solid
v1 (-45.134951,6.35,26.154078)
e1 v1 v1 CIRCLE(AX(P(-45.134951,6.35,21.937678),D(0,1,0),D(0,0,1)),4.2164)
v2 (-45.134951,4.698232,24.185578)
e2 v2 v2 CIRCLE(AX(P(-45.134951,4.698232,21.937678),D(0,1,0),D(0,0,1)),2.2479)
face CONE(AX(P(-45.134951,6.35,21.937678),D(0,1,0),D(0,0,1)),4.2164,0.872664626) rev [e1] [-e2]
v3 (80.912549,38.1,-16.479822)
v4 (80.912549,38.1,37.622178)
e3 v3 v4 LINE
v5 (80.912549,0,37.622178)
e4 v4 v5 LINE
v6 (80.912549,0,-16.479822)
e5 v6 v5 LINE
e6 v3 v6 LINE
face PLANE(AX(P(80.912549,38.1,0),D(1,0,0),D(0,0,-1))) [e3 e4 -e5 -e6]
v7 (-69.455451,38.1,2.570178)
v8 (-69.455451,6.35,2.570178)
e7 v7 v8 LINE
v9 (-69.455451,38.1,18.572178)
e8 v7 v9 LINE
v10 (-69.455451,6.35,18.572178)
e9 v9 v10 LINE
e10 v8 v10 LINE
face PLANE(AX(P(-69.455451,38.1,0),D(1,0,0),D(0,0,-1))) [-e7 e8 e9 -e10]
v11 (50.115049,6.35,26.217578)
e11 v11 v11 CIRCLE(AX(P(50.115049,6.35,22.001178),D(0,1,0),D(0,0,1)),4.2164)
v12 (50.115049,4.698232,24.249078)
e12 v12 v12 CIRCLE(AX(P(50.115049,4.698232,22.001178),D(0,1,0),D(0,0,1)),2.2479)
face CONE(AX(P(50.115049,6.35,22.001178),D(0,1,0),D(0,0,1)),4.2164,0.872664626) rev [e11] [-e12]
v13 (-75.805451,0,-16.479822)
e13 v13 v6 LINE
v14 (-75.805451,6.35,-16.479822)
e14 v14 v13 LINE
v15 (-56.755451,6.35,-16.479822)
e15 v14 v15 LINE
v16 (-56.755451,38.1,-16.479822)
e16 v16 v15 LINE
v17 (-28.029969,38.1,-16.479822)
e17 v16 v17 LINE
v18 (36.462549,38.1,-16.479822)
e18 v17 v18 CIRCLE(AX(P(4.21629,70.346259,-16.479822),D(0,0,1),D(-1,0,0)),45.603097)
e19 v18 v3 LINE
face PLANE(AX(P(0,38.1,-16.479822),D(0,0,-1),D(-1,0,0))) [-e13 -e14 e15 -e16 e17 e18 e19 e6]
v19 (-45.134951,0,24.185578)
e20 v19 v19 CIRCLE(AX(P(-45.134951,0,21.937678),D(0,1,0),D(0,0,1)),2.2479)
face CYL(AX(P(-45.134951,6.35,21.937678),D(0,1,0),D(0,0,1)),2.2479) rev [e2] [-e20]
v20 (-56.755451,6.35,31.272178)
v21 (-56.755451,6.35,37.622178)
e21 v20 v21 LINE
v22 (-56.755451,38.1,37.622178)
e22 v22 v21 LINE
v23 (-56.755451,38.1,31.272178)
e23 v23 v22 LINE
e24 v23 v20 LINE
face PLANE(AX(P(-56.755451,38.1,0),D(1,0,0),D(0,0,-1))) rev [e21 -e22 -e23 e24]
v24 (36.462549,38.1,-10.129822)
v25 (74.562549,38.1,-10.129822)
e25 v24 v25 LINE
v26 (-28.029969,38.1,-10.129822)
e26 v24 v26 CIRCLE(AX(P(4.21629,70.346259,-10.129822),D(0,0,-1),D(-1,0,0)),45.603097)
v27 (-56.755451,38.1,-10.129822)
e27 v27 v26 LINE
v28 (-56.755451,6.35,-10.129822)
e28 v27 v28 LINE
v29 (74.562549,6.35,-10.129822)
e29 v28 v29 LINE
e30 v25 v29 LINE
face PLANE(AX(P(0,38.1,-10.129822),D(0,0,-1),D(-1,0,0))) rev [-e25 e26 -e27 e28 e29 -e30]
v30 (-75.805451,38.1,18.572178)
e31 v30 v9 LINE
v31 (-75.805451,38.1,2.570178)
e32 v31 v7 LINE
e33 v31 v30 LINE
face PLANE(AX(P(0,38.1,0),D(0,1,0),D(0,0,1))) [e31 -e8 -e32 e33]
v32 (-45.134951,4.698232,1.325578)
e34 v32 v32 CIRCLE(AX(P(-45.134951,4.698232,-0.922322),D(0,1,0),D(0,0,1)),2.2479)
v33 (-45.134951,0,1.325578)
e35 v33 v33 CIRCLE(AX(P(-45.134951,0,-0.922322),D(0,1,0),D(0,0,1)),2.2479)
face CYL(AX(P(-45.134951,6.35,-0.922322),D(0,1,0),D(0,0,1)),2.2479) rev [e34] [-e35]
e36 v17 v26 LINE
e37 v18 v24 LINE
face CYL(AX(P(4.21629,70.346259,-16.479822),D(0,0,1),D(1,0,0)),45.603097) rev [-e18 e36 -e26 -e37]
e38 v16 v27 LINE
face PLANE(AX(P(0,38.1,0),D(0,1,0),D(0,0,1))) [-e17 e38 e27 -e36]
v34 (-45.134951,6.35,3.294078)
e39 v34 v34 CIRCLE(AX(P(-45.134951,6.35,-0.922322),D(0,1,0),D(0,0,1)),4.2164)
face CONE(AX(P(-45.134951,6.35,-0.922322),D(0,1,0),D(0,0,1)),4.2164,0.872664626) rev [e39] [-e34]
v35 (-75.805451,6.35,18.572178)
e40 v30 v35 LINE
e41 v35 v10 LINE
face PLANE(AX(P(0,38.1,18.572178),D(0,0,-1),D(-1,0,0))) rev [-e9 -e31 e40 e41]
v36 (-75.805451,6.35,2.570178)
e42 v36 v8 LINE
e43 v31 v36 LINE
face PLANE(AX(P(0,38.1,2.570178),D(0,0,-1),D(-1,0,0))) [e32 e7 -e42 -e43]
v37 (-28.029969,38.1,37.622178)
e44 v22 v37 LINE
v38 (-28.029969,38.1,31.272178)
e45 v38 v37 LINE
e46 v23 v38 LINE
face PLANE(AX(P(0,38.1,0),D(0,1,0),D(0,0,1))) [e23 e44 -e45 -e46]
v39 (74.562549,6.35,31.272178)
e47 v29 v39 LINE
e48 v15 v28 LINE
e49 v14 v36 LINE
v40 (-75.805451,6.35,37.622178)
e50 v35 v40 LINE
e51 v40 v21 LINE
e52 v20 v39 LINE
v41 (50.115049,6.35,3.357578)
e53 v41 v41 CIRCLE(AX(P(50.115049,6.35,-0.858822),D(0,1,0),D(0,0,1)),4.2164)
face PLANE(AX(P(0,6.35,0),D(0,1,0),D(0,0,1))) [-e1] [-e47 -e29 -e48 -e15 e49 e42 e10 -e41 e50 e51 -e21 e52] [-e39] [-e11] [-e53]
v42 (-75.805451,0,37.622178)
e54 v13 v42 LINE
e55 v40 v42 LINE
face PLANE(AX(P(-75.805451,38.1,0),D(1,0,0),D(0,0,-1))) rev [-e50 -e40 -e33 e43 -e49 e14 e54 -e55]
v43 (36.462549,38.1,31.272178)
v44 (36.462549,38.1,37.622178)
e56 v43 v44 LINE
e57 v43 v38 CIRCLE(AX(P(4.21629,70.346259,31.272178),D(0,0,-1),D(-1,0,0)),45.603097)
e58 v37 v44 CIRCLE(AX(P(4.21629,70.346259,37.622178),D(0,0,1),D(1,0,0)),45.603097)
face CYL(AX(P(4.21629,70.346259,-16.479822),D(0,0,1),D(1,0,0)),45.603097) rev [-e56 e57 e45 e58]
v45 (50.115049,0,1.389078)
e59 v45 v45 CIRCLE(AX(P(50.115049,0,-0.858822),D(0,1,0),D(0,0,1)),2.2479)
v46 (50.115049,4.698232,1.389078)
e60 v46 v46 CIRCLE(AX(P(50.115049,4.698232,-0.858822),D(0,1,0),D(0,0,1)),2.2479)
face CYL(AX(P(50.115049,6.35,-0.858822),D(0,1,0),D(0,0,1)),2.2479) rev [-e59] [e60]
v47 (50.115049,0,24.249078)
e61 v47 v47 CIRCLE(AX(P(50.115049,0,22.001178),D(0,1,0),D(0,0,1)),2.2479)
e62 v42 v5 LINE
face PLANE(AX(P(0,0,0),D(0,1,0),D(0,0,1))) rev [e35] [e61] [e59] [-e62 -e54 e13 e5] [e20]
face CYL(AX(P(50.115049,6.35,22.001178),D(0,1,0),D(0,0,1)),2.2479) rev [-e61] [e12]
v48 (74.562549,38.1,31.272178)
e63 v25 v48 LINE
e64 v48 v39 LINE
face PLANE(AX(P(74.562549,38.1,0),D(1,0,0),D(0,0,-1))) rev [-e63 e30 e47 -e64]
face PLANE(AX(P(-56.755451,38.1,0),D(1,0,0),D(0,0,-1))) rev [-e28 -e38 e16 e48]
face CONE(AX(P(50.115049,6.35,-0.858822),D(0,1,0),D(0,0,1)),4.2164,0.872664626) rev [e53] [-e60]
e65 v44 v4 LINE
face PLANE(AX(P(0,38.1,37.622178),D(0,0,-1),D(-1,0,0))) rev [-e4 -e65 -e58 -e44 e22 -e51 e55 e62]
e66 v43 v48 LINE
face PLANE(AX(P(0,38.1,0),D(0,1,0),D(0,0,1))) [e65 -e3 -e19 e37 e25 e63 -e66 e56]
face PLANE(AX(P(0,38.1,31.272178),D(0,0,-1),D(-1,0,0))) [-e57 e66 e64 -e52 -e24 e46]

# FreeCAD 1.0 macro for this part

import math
import FreeCAD as App
import Part
import Sketcher
Q = App.Units.Quantity


def add_polygon(sketch, points):
    """Adds a closed chain of lines whose ends are joined by coincident constraints."""
    first, n = sketch.GeometryCount, len(points)
    for a, b in zip(points, points[1:] + points[:1]):
        sketch.addGeometry(Part.LineSegment(App.Vector(*a, 0), App.Vector(*b, 0)), False)
    for i in range(n):
        sketch.addConstraint(Sketcher.Constraint("Coincident", first + i, 2, first + (i + 1) % n, 1))

doc = App.newDocument("Part")
body = doc.addObject("PartDesign::Body", "Body")

# Sketch on XZ plane
sketch1 = body.newObject("Sketcher::SketchObject", "Sketch")
sketch1.AttachmentSupport = (doc.getObject("XZ_Plane"), [""])
sketch1.MapMode = "FlatFace"
add_polygon(sketch1, [(74.562549, -16.479822), (74.562549, 37.622178), (80.912549, 37.622178), (80.912549, -16.479822)])  # lines 0-3
sketch1.addConstraint(Sketcher.Constraint("Vertical", 0))
sketch1.addConstraint(Sketcher.Constraint("Horizontal", 1))
sketch1.addConstraint(Sketcher.Constraint("Vertical", 2))
sketch1.addConstraint(Sketcher.Constraint("Horizontal", 3))
sketch1.addConstraint(Sketcher.Constraint("DistanceX", 1, 1, 1, 2, Q("0.25 in")))
sketch1.addConstraint(Sketcher.Constraint("DistanceY", 0, 1, 0, 2, Q("2.13 in")))
sketch1.addConstraint(Sketcher.Constraint("DistanceX", -1, 1, 0, 2, Q("74.562549 mm")))
sketch1.addConstraint(Sketcher.Constraint("DistanceY", -1, 1, 0, 2, Q("37.622178 mm")))
pad1 = body.newObject("PartDesign::Pad", "Pad")
pad1.Profile = sketch1
pad1.Length = Q("1.5 in")
pad1.Reversed = True
body2 = doc.addObject("PartDesign::Body", "Body001")

# Sketch on XZ plane
sketch2 = body2.newObject("Sketcher::SketchObject", "Sketch001")
sketch2.AttachmentSupport = (doc.getObject("XZ_Plane001"), [""])
sketch2.MapMode = "FlatFace"
add_polygon(sketch2, [(-75.805451, 2.570178), (-75.805451, 18.572178), (-69.455451, 18.572178), (-69.455451, 2.570178)])  # lines 0-3
sketch2.addConstraint(Sketcher.Constraint("Vertical", 0))
sketch2.addConstraint(Sketcher.Constraint("Horizontal", 1))
sketch2.addConstraint(Sketcher.Constraint("Vertical", 2))
sketch2.addConstraint(Sketcher.Constraint("Horizontal", 3))
sketch2.addConstraint(Sketcher.Constraint("DistanceX", 1, 1, 1, 2, Q("0.25 in")))
sketch2.addConstraint(Sketcher.Constraint("DistanceY", 0, 1, 0, 2, Q("0.63 in")))
sketch2.addConstraint(Sketcher.Constraint("DistanceX", 0, 2, -1, 1, Q("75.805451 mm")))
sketch2.addConstraint(Sketcher.Constraint("DistanceY", -1, 1, 0, 2, Q("18.572178 mm")))
pad2 = body2.newObject("PartDesign::Pad", "Pad001")
pad2.Profile = sketch2
pad2.Length = Q("1.5 in")
pad2.Reversed = True
body.AllowCompound = True
doc.recompute()

boolean = body.newObject("PartDesign::Boolean", "Boolean")
boolean.Type = "Fuse"
boolean.addObjects([body2])

# Sketch on XZ plane
sketch3 = body.newObject("Sketcher::SketchObject", "Sketch002")
sketch3.AttachmentSupport = (doc.getObject("XZ_Plane"), [""])
sketch3.MapMode = "FlatFace"
add_polygon(sketch3, [(-69.455451, -10.129822), (-69.455451, 31.272178), (74.562549, 31.272178), (74.562549, -10.129822)])  # lines 0-3
sketch3.addConstraint(Sketcher.Constraint("Vertical", 0))
sketch3.addConstraint(Sketcher.Constraint("Horizontal", 1))
sketch3.addConstraint(Sketcher.Constraint("Vertical", 2))
sketch3.addConstraint(Sketcher.Constraint("Horizontal", 3))
sketch3.addConstraint(Sketcher.Constraint("DistanceX", 1, 1, 1, 2, Q("5.67 in")))
sketch3.addConstraint(Sketcher.Constraint("DistanceY", 0, 1, 0, 2, Q("1.63 in")))
sketch3.addConstraint(Sketcher.Constraint("DistanceX", 0, 2, -1, 1, Q("69.455451 mm")))
sketch3.addConstraint(Sketcher.Constraint("DistanceY", -1, 1, 0, 2, Q("31.272178 mm")))
pad3 = body.newObject("PartDesign::Pad", "Pad002")
pad3.Profile = sketch3
pad3.Length = Q("0.25 in")
pad3.Reversed = True

# Sketch on XZ plane
sketch4 = body.newObject("Sketcher::SketchObject", "Sketch003")
sketch4.AttachmentSupport = (doc.getObject("XZ_Plane"), [""])
sketch4.MapMode = "FlatFace"
add_polygon(sketch4, [(-56.755451, -16.479822), (-56.755451, -10.129822), (74.562549, -10.129822), (74.562549, -16.479822)])  # lines 0-3
add_polygon(sketch4, [(-56.755451, 31.272178), (-56.755451, 37.622178), (74.562549, 37.622178), (74.562549, 31.272178)])  # lines 4-7
sketch4.addConstraint(Sketcher.Constraint("Vertical", 0))
sketch4.addConstraint(Sketcher.Constraint("Horizontal", 1))
sketch4.addConstraint(Sketcher.Constraint("Vertical", 2))
sketch4.addConstraint(Sketcher.Constraint("Horizontal", 3))
sketch4.addConstraint(Sketcher.Constraint("Vertical", 4))
sketch4.addConstraint(Sketcher.Constraint("Horizontal", 5))
sketch4.addConstraint(Sketcher.Constraint("Vertical", 6))
sketch4.addConstraint(Sketcher.Constraint("Horizontal", 7))
sketch4.addConstraint(Sketcher.Constraint("Vertical", 3, 2, 4, 2))
sketch4.addConstraint(Sketcher.Constraint("Vertical", 2, 2, 5, 2))
sketch4.addConstraint(Sketcher.Constraint("Equal", 2, 4))
sketch4.addConstraint(Sketcher.Constraint("DistanceX", 1, 1, 1, 2, Q("5.17 in")))
sketch4.addConstraint(Sketcher.Constraint("DistanceY", 0, 1, 0, 2, Q("0.25 in")))
sketch4.addConstraint(Sketcher.Constraint("DistanceY", 0, 2, 4, 2, Q("1.88 in")))
sketch4.addConstraint(Sketcher.Constraint("DistanceX", 0, 2, -1, 1, Q("56.755451 mm")))
sketch4.addConstraint(Sketcher.Constraint("DistanceY", 0, 2, -1, 1, Q("10.129822 mm")))
pad4 = body.newObject("PartDesign::Pad", "Pad003")
pad4.Profile = sketch4
pad4.Length = Q("1.5 in")
pad4.Reversed = True

# Sketch on XZ plane
sketch5 = body.newObject("Sketcher::SketchObject", "Sketch004")
sketch5.AttachmentSupport = (doc.getObject("XZ_Plane"), [""])
sketch5.MapMode = "FlatFace"
sketch5.AttachmentOffset = App.Placement(App.Vector(0, 0, -0.25 * 25.4), App.Rotation())
sketch5.addGeometry(Part.Circle(App.Vector(-45.134951, 21.937678, 0), App.Vector(0, 0, 1), 2.2479), False)
sketch5.addGeometry(Part.Circle(App.Vector(-45.134951, -0.922322, 0), App.Vector(0, 0, 1), 2.2479), False)
sketch5.addGeometry(Part.Circle(App.Vector(50.115049, -0.858822, 0), App.Vector(0, 0, 1), 2.2479), False)
sketch5.addGeometry(Part.Circle(App.Vector(50.115049, 22.001178, 0), App.Vector(0, 0, 1), 2.2479), False)
sketch5.addConstraint(Sketcher.Constraint("Equal", 0, 1))
sketch5.addConstraint(Sketcher.Constraint("Equal", 1, 2))
sketch5.addConstraint(Sketcher.Constraint("Equal", 2, 3))
sketch5.addConstraint(Sketcher.Constraint("Vertical", 0, 3, 1, 3))
sketch5.addConstraint(Sketcher.Constraint("Vertical", 2, 3, 3, 3))
sketch5.addConstraint(Sketcher.Constraint("Diameter", 0, Q("0.177 in")))
sketch5.addConstraint(Sketcher.Constraint("DistanceY", 1, 3, 0, 3, Q("0.9 in")))
sketch5.addConstraint(Sketcher.Constraint("DistanceY", 2, 3, 3, 3, Q("0.9 in")))
sketch5.addConstraint(Sketcher.Constraint("DistanceX", 1, 3, 2, 3, Q("3.75 in")))
sketch5.addConstraint(Sketcher.Constraint("DistanceY", 1, 3, 2, 3, Q("0.0025 in")))
sketch5.addConstraint(Sketcher.Constraint("DistanceX", 0, 3, -1, 1, Q("45.134951 mm")))
sketch5.addConstraint(Sketcher.Constraint("DistanceY", -1, 1, 0, 3, Q("21.937678 mm")))
doc.recompute()
hole = body.newObject("PartDesign::Hole", "Hole")
hole.Profile = sketch5
hole.ThreadType = "None"
hole.Diameter = Q("0.177 in")
hole.DepthType = "ThroughAll"
hole.HoleCutType = "Countersink"
hole.HoleCutDiameter = Q("0.332 in")
hole.HoleCutCountersinkAngle = 100
hole.Reversed = True

# Sketch on XZ plane
sketch6 = body.newObject("Sketcher::SketchObject", "Sketch005")
sketch6.AttachmentSupport = (doc.getObject("XZ_Plane"), [""])
sketch6.MapMode = "FlatFace"
add_polygon(sketch6, [(-69.455451, 31.272178), (-69.455451, 18.572178), (-75.805451, 18.572178), (-75.805451, 37.622178), (-56.755451, 37.622178), (-56.755451, 31.272178)])  # lines 0-5
sketch6.addConstraint(Sketcher.Constraint("Vertical", 0))
sketch6.addConstraint(Sketcher.Constraint("Horizontal", 1))
sketch6.addConstraint(Sketcher.Constraint("Vertical", 2))
sketch6.addConstraint(Sketcher.Constraint("Horizontal", 3))
sketch6.addConstraint(Sketcher.Constraint("Vertical", 4))
sketch6.addConstraint(Sketcher.Constraint("Horizontal", 5))
sketch6.addConstraint(Sketcher.Constraint("Equal", 5, 0))
sketch6.addConstraint(Sketcher.Constraint("Equal", 3, 2))
sketch6.addConstraint(Sketcher.Constraint("DistanceX", 5, 2, 5, 1, Q("0.5 in")))
sketch6.addConstraint(Sketcher.Constraint("DistanceX", 1, 2, 1, 1, Q("0.25 in")))
sketch6.addConstraint(Sketcher.Constraint("DistanceX", 0, 2, -1, 1, Q("69.455451 mm")))
sketch6.addConstraint(Sketcher.Constraint("DistanceY", -1, 1, 0, 2, Q("18.572178 mm")))
pad5 = body.newObject("PartDesign::Pad", "Pad004")
pad5.Profile = sketch6
pad5.Length = Q("0.25 in")
pad5.Reversed = True

# Sketch on XY plane
sketch7 = body.newObject("Sketcher::SketchObject", "Sketch006")
sketch7.AttachmentSupport = (doc.getObject("XY_Plane"), [""])
sketch7.MapMode = "FlatFace"
sketch7.AttachmentOffset = App.Placement(App.Vector(0, 0, 37.622178), App.Rotation())
sketch7.addGeometry(Part.LineSegment(App.Vector(36.462549, 38.1, 0), App.Vector(-28.029969, 38.1, 0)), False)
sketch7.addGeometry(Part.ArcOfCircle(Part.Circle(App.Vector(4.21629, 70.346259, 0), App.Vector(0, 0, 1), 45.603097), math.radians(-135), math.radians(-45)), False)
sketch7.addConstraint(Sketcher.Constraint("Coincident", 0, 1, 1, 2))
sketch7.addConstraint(Sketcher.Constraint("Coincident", 1, 1, 0, 2))
sketch7.addConstraint(Sketcher.Constraint("Horizontal", 0))
sketch7.addConstraint(Sketcher.Constraint("DistanceY", -1, 1, 0, 1, Q("1.5 in")))
sketch7.addConstraint(Sketcher.Constraint("Radius", 1, Q("45.603097 mm")))
sketch7.addConstraint(Sketcher.Constraint("DistanceX", 0, 2, 0, 1, Q("64.492518 mm")))
sketch7.addConstraint(Sketcher.Constraint("DistanceX", -1, 1, 1, 3, Q("4.21629 mm")))
pocket1 = body.newObject("PartDesign::Pocket", "Pocket")
pocket1.Profile = sketch7
pocket1.Type = "ThroughAll"
pocket1.Midplane = True

# Sketch on XZ plane
sketch8 = body.newObject("Sketcher::SketchObject", "Sketch007")
sketch8.AttachmentSupport = (doc.getObject("XZ_Plane"), [""])
sketch8.MapMode = "FlatFace"
add_polygon(sketch8, [(-69.455451, 2.570178), (-69.455451, -10.129822), (-56.755451, -10.129822), (-56.755451, -16.479822), (-75.805451, -16.479822), (-75.805451, 2.570178)])  # lines 0-5
sketch8.addConstraint(Sketcher.Constraint("Vertical", 0))
sketch8.addConstraint(Sketcher.Constraint("Horizontal", 1))
sketch8.addConstraint(Sketcher.Constraint("Vertical", 2))
sketch8.addConstraint(Sketcher.Constraint("Horizontal", 3))
sketch8.addConstraint(Sketcher.Constraint("Vertical", 4))
sketch8.addConstraint(Sketcher.Constraint("Horizontal", 5))
sketch8.addConstraint(Sketcher.Constraint("Equal", 1, 0))
sketch8.addConstraint(Sketcher.Constraint("Equal", 5, 2))
sketch8.addConstraint(Sketcher.Constraint("DistanceX", 1, 1, 1, 2, Q("0.5 in")))
sketch8.addConstraint(Sketcher.Constraint("DistanceX", 3, 2, 3, 1, Q("0.75 in")))
sketch8.addConstraint(Sketcher.Constraint("DistanceX", 0, 2, -1, 1, Q("69.455451 mm")))
sketch8.addConstraint(Sketcher.Constraint("DistanceY", 0, 2, -1, 1, Q("10.129822 mm")))
pad6 = body.newObject("PartDesign::Pad", "Pad005")
pad6.Profile = sketch8
pad6.Length = Q("0.25 in")
pad6.Reversed = True

doc.recompute()
